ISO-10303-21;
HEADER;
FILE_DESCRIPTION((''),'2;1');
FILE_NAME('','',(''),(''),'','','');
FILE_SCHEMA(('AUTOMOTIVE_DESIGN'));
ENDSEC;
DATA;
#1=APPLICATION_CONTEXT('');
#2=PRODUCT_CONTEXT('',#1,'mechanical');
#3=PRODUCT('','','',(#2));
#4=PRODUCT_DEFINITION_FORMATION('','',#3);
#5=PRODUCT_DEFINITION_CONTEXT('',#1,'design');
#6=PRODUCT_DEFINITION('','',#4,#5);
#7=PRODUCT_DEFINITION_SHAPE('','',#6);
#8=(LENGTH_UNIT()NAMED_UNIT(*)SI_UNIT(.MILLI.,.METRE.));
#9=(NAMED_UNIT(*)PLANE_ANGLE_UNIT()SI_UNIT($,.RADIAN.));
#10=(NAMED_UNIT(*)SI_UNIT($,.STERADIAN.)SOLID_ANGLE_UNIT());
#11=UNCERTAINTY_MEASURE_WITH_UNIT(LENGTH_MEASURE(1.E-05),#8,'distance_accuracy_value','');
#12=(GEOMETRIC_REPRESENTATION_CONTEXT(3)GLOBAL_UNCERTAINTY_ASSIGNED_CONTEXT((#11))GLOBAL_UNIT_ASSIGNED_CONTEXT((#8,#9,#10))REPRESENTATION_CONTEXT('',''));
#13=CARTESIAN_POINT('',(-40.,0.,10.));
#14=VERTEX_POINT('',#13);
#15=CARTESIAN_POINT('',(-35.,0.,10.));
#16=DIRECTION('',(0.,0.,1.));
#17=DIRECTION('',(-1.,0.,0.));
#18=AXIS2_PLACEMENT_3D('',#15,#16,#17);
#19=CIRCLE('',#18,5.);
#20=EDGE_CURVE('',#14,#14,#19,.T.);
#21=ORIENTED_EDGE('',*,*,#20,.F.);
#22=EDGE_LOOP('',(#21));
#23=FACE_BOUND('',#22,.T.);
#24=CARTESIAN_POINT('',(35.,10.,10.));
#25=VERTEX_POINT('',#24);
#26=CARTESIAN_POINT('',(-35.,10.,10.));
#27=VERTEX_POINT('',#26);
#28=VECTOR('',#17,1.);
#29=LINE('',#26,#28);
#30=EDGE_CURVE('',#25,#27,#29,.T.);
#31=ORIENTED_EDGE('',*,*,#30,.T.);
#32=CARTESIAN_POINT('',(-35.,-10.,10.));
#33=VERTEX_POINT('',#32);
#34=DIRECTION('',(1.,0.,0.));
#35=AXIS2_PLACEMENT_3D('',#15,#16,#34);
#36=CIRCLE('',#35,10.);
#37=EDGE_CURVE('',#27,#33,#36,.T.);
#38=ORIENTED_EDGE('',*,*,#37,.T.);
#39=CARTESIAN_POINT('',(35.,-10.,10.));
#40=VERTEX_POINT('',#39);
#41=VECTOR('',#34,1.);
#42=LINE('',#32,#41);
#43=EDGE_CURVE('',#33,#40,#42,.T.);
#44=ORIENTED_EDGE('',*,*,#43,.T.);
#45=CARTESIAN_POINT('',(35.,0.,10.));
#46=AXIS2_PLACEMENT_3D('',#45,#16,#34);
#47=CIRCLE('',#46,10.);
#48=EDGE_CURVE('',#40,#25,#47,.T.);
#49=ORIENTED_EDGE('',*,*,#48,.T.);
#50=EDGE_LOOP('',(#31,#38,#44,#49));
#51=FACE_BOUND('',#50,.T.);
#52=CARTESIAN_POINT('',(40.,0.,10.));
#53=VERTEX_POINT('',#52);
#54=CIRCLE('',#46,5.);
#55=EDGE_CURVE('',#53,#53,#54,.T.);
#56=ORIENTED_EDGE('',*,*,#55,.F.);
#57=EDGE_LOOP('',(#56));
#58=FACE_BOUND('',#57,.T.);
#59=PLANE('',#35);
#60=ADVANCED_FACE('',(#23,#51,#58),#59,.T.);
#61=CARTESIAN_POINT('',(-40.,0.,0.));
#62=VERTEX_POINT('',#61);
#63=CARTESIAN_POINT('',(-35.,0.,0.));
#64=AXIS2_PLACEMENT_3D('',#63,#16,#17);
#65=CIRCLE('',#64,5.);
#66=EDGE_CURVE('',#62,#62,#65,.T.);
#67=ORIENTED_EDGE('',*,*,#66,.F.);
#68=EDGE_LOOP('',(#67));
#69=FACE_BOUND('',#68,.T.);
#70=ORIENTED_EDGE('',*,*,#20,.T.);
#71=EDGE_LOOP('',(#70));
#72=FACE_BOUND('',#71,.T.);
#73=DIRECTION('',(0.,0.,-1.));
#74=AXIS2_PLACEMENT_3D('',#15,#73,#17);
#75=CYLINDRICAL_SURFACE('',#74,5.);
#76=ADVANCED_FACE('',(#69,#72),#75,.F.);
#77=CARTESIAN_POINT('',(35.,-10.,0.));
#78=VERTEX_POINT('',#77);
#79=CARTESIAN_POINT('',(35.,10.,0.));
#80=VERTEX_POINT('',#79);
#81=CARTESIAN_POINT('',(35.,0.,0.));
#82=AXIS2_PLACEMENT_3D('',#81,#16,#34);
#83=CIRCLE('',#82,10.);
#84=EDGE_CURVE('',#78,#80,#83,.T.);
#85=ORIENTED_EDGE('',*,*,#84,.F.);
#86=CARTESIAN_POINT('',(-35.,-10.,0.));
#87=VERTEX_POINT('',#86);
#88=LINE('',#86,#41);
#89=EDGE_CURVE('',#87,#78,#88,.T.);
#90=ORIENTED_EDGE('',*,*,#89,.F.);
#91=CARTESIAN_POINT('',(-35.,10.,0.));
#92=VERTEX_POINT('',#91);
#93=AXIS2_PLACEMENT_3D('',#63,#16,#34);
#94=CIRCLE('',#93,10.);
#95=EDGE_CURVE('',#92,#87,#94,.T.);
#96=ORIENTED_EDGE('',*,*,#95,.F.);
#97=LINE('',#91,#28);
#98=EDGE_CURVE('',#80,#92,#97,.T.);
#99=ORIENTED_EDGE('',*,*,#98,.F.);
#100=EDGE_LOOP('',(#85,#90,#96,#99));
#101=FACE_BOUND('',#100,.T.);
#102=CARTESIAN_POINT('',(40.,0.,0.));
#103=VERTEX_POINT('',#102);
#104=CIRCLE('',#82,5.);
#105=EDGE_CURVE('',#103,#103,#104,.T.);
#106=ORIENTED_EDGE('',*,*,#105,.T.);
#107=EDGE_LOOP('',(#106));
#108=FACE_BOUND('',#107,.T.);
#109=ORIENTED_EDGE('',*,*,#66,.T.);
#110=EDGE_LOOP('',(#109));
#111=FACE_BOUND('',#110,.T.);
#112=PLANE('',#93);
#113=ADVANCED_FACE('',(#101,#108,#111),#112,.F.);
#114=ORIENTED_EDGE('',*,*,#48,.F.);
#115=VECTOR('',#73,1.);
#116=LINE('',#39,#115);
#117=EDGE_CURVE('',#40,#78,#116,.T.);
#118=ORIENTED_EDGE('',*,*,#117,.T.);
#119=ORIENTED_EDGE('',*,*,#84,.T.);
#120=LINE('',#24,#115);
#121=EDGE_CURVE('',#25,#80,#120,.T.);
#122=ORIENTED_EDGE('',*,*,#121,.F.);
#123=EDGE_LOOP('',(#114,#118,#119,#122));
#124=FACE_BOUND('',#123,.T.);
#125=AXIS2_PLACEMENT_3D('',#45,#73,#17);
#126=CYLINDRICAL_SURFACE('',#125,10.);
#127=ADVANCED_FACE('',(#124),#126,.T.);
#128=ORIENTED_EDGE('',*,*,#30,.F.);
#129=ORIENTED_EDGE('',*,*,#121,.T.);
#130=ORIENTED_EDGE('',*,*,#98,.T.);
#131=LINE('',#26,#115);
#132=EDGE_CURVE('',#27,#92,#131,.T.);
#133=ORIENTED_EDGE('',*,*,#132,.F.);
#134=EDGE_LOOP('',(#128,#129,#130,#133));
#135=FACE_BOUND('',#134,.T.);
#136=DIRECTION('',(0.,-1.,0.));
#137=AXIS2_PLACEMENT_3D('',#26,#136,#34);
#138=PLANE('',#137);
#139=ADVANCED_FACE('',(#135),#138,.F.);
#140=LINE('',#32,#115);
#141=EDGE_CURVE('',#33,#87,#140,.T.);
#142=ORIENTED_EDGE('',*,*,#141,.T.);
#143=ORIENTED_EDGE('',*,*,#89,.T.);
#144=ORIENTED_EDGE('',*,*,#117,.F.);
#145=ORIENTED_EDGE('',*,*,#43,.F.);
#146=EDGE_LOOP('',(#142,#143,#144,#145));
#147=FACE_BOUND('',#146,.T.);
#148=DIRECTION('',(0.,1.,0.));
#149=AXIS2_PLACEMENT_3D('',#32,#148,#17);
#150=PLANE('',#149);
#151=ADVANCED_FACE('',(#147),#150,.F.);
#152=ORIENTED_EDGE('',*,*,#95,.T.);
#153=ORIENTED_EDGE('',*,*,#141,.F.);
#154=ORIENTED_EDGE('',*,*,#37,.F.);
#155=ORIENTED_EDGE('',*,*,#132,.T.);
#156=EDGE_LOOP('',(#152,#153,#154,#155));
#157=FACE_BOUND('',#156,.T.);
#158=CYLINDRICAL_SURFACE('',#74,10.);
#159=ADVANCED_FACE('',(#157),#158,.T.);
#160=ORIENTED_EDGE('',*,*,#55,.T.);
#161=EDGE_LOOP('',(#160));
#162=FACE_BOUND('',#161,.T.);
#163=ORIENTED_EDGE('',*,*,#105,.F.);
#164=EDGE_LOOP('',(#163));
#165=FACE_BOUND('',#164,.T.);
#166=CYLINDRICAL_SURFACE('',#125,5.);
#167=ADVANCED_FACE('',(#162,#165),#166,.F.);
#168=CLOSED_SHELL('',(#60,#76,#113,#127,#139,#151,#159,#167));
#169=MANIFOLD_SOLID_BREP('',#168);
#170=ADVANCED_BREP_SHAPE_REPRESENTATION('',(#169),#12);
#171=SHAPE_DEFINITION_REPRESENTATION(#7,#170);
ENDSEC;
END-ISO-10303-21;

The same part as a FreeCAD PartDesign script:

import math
import FreeCAD as App
import Part
import Sketcher

V = App.Vector

doc = App.newDocument("Part")
body = doc.addObject("PartDesign::Body", "Body")

# Sketch on XY plane
sketch1 = body.newObject("Sketcher::SketchObject", "Sketch")
sketch1.AttachmentSupport = (doc.getObject("XY_Plane"), [""])
sketch1.MapMode = "FlatFace"
sketch1.addGeometry([
    Part.LineSegment(V(35, 10, 0), V(-35, 10, 0)),  # 0
    Part.ArcOfCircle(Part.Circle(V(-35, 0, 0), V(0, 0, 1), 10), math.radians(90), math.radians(270)),  # 1
    Part.LineSegment(V(-35, -10, 0), V(35, -10, 0)),  # 2
    Part.ArcOfCircle(Part.Circle(V(35, 0, 0), V(0, 0, 1), 10), math.radians(-90), math.radians(90)),  # 3
    Part.Circle(V(35, 0, 0), V(0, 0, 1), 5),  # 4
    Part.Circle(V(-35, 0, 0), V(0, 0, 1), 5),  # 5
], False)
sketch1.addConstraint([
    Sketcher.Constraint("Tangent", 0, 2, 1, 1),
    Sketcher.Constraint("Tangent", 1, 2, 2, 1),
    Sketcher.Constraint("Tangent", 2, 2, 3, 1),
    Sketcher.Constraint("Tangent", 3, 2, 0, 1),
    Sketcher.Constraint("Horizontal", 0),
    Sketcher.Constraint("Horizontal", 2),
    Sketcher.Constraint("Coincident", 4, 3, 3, 3),
    Sketcher.Constraint("Coincident", 5, 3, 1, 3),
    Sketcher.Constraint("Equal", 4, 5),
    Sketcher.Constraint("Symmetric", 1, 3, 3, 3, -1, 1),
    Sketcher.Constraint("Diameter", 4, 10.0),
    Sketcher.Constraint("Radius", 1, 10.0),
    Sketcher.Constraint("DistanceX", 0, 2, 0, 1, 70.0),
])
pad1 = body.newObject("PartDesign::Pad", "Pad")
pad1.Profile = sketch1
pad1.Length = 10

doc.recompute()
